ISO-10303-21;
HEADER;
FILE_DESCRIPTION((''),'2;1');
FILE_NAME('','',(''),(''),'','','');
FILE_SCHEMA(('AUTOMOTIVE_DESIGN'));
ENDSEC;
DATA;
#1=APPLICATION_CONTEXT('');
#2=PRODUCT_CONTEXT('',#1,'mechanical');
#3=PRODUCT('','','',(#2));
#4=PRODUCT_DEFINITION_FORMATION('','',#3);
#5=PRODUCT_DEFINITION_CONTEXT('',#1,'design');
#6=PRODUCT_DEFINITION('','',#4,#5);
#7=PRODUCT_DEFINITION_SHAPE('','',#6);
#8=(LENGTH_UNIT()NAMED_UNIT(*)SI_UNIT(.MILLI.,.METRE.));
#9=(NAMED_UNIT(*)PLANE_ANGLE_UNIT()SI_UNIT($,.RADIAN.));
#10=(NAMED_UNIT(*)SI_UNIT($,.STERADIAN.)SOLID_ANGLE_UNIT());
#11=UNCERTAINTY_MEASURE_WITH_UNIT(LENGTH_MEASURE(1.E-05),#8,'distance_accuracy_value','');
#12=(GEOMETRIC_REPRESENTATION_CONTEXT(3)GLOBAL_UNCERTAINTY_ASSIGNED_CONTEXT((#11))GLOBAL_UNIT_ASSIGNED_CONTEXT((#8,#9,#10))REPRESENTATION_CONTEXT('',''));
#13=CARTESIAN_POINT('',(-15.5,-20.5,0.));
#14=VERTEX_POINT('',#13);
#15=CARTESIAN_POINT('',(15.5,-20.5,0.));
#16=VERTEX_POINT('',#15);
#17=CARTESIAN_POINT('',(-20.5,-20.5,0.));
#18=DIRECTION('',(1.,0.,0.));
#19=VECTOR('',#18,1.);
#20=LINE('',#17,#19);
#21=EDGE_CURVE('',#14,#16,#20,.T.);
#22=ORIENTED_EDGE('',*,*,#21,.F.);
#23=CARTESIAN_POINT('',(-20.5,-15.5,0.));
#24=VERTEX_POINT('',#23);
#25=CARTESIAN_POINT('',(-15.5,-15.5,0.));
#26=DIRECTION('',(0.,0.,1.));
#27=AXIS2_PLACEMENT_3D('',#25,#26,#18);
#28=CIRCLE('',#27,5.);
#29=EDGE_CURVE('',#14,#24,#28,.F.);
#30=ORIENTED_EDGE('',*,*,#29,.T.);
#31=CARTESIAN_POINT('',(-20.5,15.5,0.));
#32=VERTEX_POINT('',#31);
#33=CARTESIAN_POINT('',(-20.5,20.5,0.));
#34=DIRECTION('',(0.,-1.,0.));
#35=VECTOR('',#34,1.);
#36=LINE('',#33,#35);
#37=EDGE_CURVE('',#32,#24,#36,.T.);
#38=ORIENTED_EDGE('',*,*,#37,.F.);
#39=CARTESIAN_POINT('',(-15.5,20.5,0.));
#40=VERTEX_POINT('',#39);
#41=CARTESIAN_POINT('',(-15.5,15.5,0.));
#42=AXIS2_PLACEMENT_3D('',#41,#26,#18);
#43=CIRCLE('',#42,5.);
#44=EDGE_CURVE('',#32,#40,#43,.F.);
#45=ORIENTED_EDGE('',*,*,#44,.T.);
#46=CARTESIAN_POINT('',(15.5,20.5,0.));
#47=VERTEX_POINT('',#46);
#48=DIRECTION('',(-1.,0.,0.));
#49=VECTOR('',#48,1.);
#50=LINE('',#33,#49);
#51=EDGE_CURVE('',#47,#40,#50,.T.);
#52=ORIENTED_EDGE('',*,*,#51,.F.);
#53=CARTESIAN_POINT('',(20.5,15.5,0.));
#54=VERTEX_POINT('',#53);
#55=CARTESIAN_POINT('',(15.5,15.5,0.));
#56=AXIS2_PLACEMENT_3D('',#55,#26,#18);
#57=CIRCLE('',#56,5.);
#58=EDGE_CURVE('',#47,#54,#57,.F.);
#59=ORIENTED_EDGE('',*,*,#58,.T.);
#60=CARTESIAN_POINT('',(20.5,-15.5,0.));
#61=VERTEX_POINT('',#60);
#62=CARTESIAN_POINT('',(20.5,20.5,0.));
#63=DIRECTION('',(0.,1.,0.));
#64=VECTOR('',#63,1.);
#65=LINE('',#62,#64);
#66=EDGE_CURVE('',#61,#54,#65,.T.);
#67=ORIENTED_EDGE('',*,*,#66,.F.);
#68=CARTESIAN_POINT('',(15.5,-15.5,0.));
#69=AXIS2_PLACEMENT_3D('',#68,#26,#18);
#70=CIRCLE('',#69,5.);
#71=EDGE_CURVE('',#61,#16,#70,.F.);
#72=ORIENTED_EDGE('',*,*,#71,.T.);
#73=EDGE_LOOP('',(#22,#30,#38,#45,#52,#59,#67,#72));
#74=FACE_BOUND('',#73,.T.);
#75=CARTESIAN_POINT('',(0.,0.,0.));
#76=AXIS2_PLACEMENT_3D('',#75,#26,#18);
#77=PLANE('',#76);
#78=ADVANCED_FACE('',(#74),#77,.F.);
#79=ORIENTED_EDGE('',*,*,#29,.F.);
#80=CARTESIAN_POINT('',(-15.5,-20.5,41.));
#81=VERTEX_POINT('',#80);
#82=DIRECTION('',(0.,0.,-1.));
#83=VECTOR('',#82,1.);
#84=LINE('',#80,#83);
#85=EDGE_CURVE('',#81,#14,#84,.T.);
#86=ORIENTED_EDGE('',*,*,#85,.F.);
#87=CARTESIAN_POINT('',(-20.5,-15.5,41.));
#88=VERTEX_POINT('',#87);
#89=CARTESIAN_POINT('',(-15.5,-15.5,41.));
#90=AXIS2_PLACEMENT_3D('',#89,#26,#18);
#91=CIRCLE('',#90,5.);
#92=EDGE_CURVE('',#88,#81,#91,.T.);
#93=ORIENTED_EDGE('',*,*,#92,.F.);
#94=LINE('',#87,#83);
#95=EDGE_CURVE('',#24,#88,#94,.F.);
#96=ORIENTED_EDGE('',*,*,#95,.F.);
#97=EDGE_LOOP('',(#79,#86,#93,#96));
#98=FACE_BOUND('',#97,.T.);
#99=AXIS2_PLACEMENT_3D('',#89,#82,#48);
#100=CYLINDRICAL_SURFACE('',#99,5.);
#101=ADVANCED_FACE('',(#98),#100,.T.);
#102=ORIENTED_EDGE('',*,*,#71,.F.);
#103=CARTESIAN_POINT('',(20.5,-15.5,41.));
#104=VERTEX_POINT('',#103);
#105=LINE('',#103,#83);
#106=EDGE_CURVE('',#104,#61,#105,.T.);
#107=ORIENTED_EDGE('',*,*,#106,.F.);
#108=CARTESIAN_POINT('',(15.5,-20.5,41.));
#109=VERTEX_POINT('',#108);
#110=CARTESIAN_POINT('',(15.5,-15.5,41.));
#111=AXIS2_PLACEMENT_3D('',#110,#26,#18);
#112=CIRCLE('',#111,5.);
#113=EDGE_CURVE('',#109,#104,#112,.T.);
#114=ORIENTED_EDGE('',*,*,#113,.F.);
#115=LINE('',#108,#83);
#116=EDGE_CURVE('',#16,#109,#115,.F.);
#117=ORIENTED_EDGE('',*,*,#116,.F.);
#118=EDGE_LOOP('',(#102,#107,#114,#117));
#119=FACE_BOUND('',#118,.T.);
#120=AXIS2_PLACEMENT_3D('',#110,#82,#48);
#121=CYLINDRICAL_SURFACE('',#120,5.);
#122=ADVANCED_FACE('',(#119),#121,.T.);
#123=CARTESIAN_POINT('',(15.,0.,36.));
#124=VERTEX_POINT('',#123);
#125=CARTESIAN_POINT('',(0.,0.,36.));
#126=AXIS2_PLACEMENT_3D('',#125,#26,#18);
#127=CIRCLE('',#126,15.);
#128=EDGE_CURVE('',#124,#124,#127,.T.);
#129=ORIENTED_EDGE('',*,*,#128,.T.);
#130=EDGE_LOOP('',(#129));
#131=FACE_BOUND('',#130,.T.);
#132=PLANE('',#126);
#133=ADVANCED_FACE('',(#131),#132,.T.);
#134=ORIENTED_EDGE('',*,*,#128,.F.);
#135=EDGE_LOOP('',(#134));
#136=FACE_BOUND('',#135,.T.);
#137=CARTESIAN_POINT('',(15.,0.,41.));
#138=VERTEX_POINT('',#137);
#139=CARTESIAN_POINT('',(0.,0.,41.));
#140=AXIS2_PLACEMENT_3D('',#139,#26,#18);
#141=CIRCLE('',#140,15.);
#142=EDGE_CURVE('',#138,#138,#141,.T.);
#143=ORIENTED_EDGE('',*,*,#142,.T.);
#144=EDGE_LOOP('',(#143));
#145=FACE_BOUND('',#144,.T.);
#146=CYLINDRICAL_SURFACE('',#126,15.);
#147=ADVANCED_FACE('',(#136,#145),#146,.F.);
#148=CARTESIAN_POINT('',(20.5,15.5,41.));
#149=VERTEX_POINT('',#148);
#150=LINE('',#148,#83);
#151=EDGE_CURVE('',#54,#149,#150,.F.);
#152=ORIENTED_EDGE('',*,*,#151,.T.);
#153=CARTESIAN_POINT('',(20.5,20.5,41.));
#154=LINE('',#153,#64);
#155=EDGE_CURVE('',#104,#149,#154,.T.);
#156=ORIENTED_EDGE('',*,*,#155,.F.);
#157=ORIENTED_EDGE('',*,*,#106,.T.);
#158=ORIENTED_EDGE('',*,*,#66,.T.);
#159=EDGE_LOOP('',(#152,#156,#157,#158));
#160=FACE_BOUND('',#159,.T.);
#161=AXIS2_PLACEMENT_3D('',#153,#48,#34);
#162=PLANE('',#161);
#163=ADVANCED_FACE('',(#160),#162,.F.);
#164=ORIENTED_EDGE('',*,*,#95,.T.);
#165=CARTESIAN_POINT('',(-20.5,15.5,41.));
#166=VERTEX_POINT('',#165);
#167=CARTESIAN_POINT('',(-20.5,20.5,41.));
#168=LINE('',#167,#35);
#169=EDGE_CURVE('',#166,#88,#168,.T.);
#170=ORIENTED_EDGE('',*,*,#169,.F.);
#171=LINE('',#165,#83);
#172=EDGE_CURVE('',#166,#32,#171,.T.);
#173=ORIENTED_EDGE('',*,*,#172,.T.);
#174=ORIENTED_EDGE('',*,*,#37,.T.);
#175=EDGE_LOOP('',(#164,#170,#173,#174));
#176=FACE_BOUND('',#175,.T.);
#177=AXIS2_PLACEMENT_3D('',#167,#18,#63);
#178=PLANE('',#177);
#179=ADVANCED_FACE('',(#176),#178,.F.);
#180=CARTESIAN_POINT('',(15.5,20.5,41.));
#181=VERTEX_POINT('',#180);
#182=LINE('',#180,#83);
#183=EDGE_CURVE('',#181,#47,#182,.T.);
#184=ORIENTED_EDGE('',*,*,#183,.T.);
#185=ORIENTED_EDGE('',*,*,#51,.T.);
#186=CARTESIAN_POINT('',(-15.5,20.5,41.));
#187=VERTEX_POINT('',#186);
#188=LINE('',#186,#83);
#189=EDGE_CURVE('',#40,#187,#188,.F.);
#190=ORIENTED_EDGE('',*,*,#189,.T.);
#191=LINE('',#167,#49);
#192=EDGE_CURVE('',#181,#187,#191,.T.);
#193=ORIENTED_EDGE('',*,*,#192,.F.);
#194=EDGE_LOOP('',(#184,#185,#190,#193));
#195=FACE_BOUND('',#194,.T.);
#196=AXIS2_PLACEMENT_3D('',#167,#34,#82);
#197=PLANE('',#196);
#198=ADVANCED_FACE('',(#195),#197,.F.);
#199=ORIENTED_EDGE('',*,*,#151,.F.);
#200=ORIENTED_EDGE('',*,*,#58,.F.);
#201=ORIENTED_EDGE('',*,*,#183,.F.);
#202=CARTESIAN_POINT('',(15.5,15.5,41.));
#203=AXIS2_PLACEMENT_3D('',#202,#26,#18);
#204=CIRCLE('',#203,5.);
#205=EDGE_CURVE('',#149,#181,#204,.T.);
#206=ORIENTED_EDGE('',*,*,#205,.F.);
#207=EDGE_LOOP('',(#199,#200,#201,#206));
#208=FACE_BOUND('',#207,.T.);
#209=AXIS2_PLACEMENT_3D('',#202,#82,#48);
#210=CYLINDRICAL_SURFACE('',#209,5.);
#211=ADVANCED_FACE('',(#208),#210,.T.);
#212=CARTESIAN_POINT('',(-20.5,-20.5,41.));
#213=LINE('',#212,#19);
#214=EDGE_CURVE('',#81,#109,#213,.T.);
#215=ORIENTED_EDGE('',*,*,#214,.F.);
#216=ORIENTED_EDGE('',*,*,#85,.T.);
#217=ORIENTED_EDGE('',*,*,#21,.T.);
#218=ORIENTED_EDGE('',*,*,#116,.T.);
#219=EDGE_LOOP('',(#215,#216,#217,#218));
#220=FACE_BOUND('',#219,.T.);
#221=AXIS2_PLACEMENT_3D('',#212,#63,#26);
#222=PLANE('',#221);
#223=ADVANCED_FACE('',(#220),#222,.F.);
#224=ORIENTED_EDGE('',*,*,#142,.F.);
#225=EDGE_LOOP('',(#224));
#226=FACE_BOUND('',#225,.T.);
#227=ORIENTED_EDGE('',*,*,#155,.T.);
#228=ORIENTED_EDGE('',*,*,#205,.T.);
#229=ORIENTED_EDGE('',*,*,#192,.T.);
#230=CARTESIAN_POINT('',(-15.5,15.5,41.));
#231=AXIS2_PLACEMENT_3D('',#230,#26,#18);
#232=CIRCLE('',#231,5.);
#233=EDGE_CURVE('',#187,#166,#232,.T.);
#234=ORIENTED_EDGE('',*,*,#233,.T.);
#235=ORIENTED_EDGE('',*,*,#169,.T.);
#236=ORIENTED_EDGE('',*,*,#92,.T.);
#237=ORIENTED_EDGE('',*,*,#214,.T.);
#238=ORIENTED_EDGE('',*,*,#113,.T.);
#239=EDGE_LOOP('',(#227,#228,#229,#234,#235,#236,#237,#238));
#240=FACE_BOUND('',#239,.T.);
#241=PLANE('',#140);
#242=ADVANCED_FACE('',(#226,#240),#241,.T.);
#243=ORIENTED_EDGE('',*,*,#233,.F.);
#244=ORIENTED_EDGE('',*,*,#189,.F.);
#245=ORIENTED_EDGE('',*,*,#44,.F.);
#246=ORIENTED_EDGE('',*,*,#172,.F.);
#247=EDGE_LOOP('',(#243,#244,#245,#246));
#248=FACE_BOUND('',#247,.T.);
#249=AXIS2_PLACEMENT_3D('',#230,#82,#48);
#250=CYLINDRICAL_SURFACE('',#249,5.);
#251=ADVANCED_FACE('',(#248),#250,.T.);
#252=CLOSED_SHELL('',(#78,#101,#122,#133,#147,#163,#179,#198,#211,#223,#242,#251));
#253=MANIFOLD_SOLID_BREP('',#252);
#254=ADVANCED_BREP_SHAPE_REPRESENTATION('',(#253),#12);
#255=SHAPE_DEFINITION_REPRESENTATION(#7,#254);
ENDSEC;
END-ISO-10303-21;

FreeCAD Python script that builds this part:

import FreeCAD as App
import Part
import Sketcher
Q = App.Units.Quantity


def edges_at(feature, points):
    """Names of the edges that pass closest to the given points."""
    edges = feature.Shape.Edges
    near = lambda p: min(range(len(edges)), key=lambda i: edges[i].distToShape(Part.Vertex(*p))[0])
    return sorted({f"Edge{near(p) + 1}" for p in points})

doc = App.newDocument("Part")
body = doc.addObject("PartDesign::Body", "Body")

# Sketch on XY plane
sketch1 = body.newObject("Sketcher::SketchObject", "Sketch")
sketch1.AttachmentSupport = (doc.getObject("XY_Plane"), [""])
sketch1.MapMode = "FlatFace"
sketch1.addGeometry([
    Part.LineSegment(App.Vector(-20, 20, 0), App.Vector(-20, -20, 0)),
    Part.LineSegment(App.Vector(-20, -20, 0), App.Vector(20, -20, 0)),
    Part.LineSegment(App.Vector(20, -20, 0), App.Vector(20, 20, 0)),
    Part.LineSegment(App.Vector(20, 20, 0), App.Vector(-20, 20, 0)),
], False)
sketch1.addConstraint([
    Sketcher.Constraint("Coincident", 0, 2, 1, 1),
    Sketcher.Constraint("Coincident", 1, 2, 2, 1),
    Sketcher.Constraint("Coincident", 2, 2, 3, 1),
    Sketcher.Constraint("Coincident", 3, 2, 0, 1),
    Sketcher.Constraint("Vertical", 0),
    Sketcher.Constraint("Horizontal", 1),
    Sketcher.Constraint("Vertical", 2),
    Sketcher.Constraint("Horizontal", 3),
    Sketcher.Constraint("Symmetric", 0, 2, 2, 2, -1, 1),
    Sketcher.Constraint("Equal", 3, 0),
    Sketcher.Constraint("DistanceX", 1, 1, 1, 2, Q("41 mm")),
])
pad1 = body.newObject("PartDesign::Pad", "Pad")
pad1.Profile = sketch1
pad1.Length = 41

# Sketch on XY plane
sketch2 = body.newObject("Sketcher::SketchObject", "Sketch001")
sketch2.AttachmentSupport = (doc.getObject("XY_Plane"), [""])
sketch2.MapMode = "FlatFace"
sketch2.AttachmentOffset = App.Placement(App.Vector(0, 0, 41), App.Rotation())
sketch2.addGeometry(Part.Circle(App.Vector(0, 0, 0), App.Vector(0, 0, 1), 15), False)
sketch2.addConstraint([
    Sketcher.Constraint("Coincident", 0, 3, -1, 1),
    Sketcher.Constraint("Diameter", 0, Q("30 mm")),
])
pocket1 = body.newObject("PartDesign::Pocket", "Pocket")
pocket1.Profile = sketch2
pocket1.Length = 5
doc.recompute()

fillet = body.newObject("PartDesign::Fillet", "Fillet")
fillet.Base = (pocket1, edges_at(pocket1, [
    (20.5, -20.5, 20.5),
    (-20.5, -20.5, 20.5),
    (-20.5, 20.5, 20.5),
    (20.5, 20.5, 20.5),
]))
fillet.Radius = 5

doc.recompute()
